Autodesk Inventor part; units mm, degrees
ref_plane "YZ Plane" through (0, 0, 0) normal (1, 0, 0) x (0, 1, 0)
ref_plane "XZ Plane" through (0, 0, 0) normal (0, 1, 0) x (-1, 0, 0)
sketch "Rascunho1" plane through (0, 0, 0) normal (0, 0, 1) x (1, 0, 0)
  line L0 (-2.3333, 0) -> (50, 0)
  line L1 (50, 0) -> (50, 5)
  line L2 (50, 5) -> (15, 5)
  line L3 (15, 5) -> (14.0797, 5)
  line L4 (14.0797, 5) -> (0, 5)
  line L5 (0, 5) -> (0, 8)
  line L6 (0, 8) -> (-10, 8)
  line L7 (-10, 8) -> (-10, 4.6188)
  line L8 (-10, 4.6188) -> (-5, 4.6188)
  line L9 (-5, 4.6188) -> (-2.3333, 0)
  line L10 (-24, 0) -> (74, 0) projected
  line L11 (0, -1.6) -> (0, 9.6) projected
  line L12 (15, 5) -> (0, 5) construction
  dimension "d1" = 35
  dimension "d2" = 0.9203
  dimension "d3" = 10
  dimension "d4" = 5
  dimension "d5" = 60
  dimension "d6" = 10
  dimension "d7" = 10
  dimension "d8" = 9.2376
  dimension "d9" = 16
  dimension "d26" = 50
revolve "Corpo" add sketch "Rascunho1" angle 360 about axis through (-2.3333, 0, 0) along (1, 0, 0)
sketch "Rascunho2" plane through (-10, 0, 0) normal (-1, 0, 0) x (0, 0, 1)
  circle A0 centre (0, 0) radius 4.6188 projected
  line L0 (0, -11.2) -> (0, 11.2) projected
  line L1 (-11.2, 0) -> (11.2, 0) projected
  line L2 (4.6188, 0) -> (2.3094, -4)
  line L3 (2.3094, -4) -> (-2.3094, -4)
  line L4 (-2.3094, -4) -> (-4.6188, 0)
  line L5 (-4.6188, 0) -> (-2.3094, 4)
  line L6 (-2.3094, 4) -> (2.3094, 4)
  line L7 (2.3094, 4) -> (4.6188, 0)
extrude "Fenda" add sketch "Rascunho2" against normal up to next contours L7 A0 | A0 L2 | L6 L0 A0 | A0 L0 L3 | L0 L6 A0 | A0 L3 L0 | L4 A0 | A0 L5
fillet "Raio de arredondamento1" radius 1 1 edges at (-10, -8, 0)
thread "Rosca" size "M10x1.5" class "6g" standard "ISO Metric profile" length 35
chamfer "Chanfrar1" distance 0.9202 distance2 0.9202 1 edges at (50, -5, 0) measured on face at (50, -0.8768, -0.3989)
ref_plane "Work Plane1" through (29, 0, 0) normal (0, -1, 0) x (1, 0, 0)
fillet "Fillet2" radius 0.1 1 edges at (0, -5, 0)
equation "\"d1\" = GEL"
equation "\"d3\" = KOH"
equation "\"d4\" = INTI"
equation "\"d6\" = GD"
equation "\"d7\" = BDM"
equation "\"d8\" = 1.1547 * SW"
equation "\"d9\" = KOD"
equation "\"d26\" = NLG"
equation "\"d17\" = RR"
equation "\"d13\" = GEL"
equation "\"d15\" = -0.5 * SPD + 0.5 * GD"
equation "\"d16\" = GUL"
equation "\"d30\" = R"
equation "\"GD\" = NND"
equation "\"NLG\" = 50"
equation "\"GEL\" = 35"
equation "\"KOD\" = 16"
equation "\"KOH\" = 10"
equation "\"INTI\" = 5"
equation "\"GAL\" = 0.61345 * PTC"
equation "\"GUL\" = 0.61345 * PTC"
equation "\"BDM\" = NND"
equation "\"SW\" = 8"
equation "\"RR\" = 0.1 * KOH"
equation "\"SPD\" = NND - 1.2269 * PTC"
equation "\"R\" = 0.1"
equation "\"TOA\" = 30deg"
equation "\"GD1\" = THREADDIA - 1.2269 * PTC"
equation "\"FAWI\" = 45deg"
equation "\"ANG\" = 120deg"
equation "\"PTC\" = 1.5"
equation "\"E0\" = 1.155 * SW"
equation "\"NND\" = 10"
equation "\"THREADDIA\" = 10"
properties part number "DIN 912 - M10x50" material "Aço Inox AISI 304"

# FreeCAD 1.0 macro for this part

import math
import FreeCAD as App
import Part
import Sketcher
Q = App.Units.Quantity


def edges_at(feature, points):
    """Names of the edges that pass closest to the given points."""
    edges = feature.Shape.Edges
    near = lambda p: min(range(len(edges)), key=lambda i: edges[i].distToShape(Part.Vertex(*p))[0])
    return sorted({f"Edge{near(p) + 1}" for p in points})


def add_polygon(sketch, points):
    """Adds a closed chain of lines whose ends are joined by coincident constraints."""
    first, n = sketch.GeometryCount, len(points)
    for a, b in zip(points, points[1:] + points[:1]):
        sketch.addGeometry(Part.LineSegment(App.Vector(*a, 0), App.Vector(*b, 0)), False)
    for i in range(n):
        sketch.addConstraint(Sketcher.Constraint("Coincident", first + i, 2, first + (i + 1) % n, 1))

doc = App.newDocument("Part")
body = doc.addObject("PartDesign::Body", "Body")

# Sketch on XY plane
sketch1 = body.newObject("Sketcher::SketchObject", "Sketch")
sketch1.AttachmentSupport = (doc.getObject("XY_Plane"), [""])
sketch1.MapMode = "FlatFace"
add_polygon(sketch1, [(-5, 4.6), (-2.3, 0), (50, 0), (50, 5), (0, 5), (0, 8), (-10, 8), (-10, 4.6)])  # lines 0-7
sketch1.addConstraint([
    Sketcher.Constraint("Horizontal", 1),
    Sketcher.Constraint("Vertical", 2),
    Sketcher.Constraint("Horizontal", 3),
    Sketcher.Constraint("Vertical", 4),
    Sketcher.Constraint("Horizontal", 5),
    Sketcher.Constraint("Vertical", 6),
    Sketcher.Constraint("Horizontal", 7),
    Sketcher.Constraint("PointOnObject", 0, 2, -1),
    Sketcher.Constraint("PointOnObject", 3, 2, -2),
    Sketcher.Constraint("Equal", 7, 2),
    Sketcher.Constraint("DistanceX", 3, 2, 3, 1, Q("50 mm")),
    Sketcher.Constraint("DistanceX", 5, 2, 5, 1, Q("10 mm")),
    Sketcher.Constraint("DistanceX", 7, 1, 7, 2, Q("5 mm")),
    Sketcher.Constraint("Angle", 0, Q("-59.9997 deg")),
    Sketcher.Constraint("DistanceY", 4, 1, 4, 2, Q("3 mm")),
    Sketcher.Constraint("DistanceX", 1, 1, 1, 2, Q("52.3333 mm")),
])
revolution = body.newObject("PartDesign::Revolution", "Revolution")
revolution.Profile = sketch1
revolution.ReferenceAxis = (sketch1, ["H_Axis"])
revolution.Angle = 360

# Sketch on YZ plane
sketch2 = body.newObject("Sketcher::SketchObject", "Sketch001")
sketch2.AttachmentSupport = (doc.getObject("YZ_Plane"), [""])
sketch2.MapMode = "FlatFace"
sketch2.AttachmentOffset = App.Placement(App.Vector(0, 0, -10), App.Rotation())
sketch2.addGeometry([
    Part.LineSegment(App.Vector(4, 2.3, 0), App.Vector(0, 4.6, 0)),  # 0
    Part.ArcOfCircle(Part.Circle(App.Vector(0, 0, 0), App.Vector(0, 0, 1), 4.6), math.radians(30), math.radians(90)),  # 1
    Part.ArcOfCircle(Part.Circle(App.Vector(0, 0, 0), App.Vector(0, 0, 1), 4.6), math.radians(90), math.radians(150)),  # 2
    Part.LineSegment(App.Vector(0, 4.6, 0), App.Vector(-4, 2.3, 0)),  # 3
    Part.ArcOfCircle(Part.Circle(App.Vector(0, 0, 0), App.Vector(0, 0, 1), 4.6), math.radians(-30), math.radians(30)),  # 4
    Part.LineSegment(App.Vector(4, 2.3, 0), App.Vector(4, -2.3, 0)),  # 5
    Part.LineSegment(App.Vector(-4, 2.3, 0), App.Vector(-4, -2.3, 0)),  # 6
    Part.ArcOfCircle(Part.Circle(App.Vector(0, 0, 0), App.Vector(0, 0, 1), 4.6), math.radians(150), math.radians(210)),  # 7
    Part.LineSegment(App.Vector(-4, -2.3, 0), App.Vector(0, -4.6, 0)),  # 8
    Part.ArcOfCircle(Part.Circle(App.Vector(0, 0, 0), App.Vector(0, 0, 1), 4.6), math.radians(-150), math.radians(-90)),  # 9
    Part.ArcOfCircle(Part.Circle(App.Vector(0, 0, 0), App.Vector(0, 0, 1), 4.6), math.radians(-90), math.radians(-30)),  # 10
    Part.LineSegment(App.Vector(0, -4.6, 0), App.Vector(4, -2.3, 0)),  # 11
], False)
sketch2.addConstraint([
    Sketcher.Constraint("Coincident", 0, 1, 1, 1),
    Sketcher.Constraint("Coincident", 1, 2, 0, 2),
    Sketcher.Constraint("Coincident", 2, 1, 3, 1),
    Sketcher.Constraint("Coincident", 3, 2, 2, 2),
    Sketcher.Constraint("Coincident", 4, 1, 5, 2),
    Sketcher.Constraint("Coincident", 5, 1, 4, 2),
    Sketcher.Constraint("Coincident", 6, 1, 7, 1),
    Sketcher.Constraint("Coincident", 7, 2, 6, 2),
    Sketcher.Constraint("Coincident", 8, 1, 9, 1),
    Sketcher.Constraint("Coincident", 9, 2, 8, 2),
    Sketcher.Constraint("Coincident", 10, 1, 11, 1),
    Sketcher.Constraint("Coincident", 11, 2, 10, 2),
    Sketcher.Constraint("Vertical", 5),
    Sketcher.Constraint("Vertical", 6),
    Sketcher.Constraint("Coincident", 1, 3, -1, 1),
    Sketcher.Constraint("Coincident", 2, 3, -1, 1),
    Sketcher.Constraint("Coincident", 4, 3, -1, 1),
    Sketcher.Constraint("Coincident", 7, 3, -1, 1),
    Sketcher.Constraint("Coincident", 9, 3, -1, 1),
    Sketcher.Constraint("Coincident", 10, 3, -1, 1),
    Sketcher.Constraint("Coincident", 2, 1, 1, 2),
    Sketcher.Constraint("Coincident", 5, 1, 0, 1),
    Sketcher.Constraint("Coincident", 6, 1, 3, 2),
    Sketcher.Constraint("Coincident", 8, 1, 7, 2),
    Sketcher.Constraint("Coincident", 10, 1, 9, 2),
    Sketcher.Constraint("PointOnObject", 1, 2, -2),
    Sketcher.Constraint("PointOnObject", 9, 2, -2),
    Sketcher.Constraint("Parallel", 0, 8),
    Sketcher.Constraint("Parallel", 3, 11),
    Sketcher.Constraint("Angle", 0, Q("150 deg")),
    Sketcher.Constraint("DistanceX", -1, 1, 0, 1, Q("4 mm")),
])
pad1 = body.newObject("PartDesign::Pad", "Pad")
pad1.Profile = sketch2
pad1.Type = "UpToFirst"
doc.recompute()

fillet = body.newObject("PartDesign::Fillet", "Fillet")
fillet.Base = (pad1, edges_at(pad1, [(-10, -8, 0)]))
fillet.Radius = 1
doc.recompute()

chamfer = body.newObject("PartDesign::Chamfer", "Chamfer")
chamfer.Base = (fillet, edges_at(fillet, [(50, -5, 0)]))
chamfer.ChamferType = "Two distances"
chamfer.Size = 0.9202
chamfer.Size2 = 0.9202
doc.recompute()

fillet2 = body.newObject("PartDesign::Fillet", "Fillet001")
fillet2.Base = (chamfer, edges_at(chamfer, [(0, -5, 0)]))
fillet2.Radius = 0.1

doc.recompute()
